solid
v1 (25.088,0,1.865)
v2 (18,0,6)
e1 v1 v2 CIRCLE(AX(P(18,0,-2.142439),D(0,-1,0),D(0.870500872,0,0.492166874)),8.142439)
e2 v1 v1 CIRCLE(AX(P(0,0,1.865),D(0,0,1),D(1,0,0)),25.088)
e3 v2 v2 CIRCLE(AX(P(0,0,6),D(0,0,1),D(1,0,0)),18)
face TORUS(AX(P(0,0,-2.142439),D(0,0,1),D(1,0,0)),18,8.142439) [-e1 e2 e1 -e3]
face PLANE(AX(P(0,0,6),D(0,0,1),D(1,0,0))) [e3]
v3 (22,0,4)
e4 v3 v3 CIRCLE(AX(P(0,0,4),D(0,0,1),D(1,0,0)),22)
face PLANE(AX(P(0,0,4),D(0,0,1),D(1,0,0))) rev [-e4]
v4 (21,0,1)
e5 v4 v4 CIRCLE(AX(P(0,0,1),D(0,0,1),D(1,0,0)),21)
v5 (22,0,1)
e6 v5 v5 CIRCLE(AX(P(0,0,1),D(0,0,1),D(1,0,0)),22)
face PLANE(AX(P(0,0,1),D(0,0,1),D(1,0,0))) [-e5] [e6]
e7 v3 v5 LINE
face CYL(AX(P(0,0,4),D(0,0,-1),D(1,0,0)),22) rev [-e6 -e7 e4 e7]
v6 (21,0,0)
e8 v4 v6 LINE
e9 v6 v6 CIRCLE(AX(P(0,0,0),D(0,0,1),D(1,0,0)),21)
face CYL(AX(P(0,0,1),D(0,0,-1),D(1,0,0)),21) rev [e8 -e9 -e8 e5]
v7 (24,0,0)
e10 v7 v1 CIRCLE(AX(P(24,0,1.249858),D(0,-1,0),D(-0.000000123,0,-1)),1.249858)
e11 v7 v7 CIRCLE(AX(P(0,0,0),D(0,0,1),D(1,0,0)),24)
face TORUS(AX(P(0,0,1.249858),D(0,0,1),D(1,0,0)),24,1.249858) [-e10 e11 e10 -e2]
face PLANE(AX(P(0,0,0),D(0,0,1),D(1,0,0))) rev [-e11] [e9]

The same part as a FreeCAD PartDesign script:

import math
import FreeCAD as App
import Part
import Sketcher
from FreeCAD import Vector
Q = App.Units.Quantity

doc = App.newDocument("Part")
body = doc.addObject("PartDesign::Body", "Body")

# Sketch on XZ plane
sketch1 = doc.addObject("Sketcher::SketchObject", "Sketch")
body.addObject(sketch1)
sketch1.AttachmentSupport = (doc.XZ_Plane, [""])
sketch1.MapMode = "FlatFace"
sketch1.addGeometry([
    Part.LineSegment(Vector(21, 0, 0), Vector(24, 0, 0)),  # 0
    Part.ArcOfCircle(Part.Circle(Vector(24, 1.249858, 0), Vector(0, 0, 1), 1.249858), math.radians(-90.000007), math.radians(29.483313)),  # 1
    Part.ArcOfCircle(Part.Circle(Vector(18, -2.142439, 0), Vector(0, 0, 1), 8.142439), math.radians(29.483104), math.radians(90.000001)),  # 2
    Part.LineSegment(Vector(18, 6, 0), Vector(0, 6, 0)),  # 3
    Part.LineSegment(Vector(0, 6, 0), Vector(0, 4, 0)),  # 4
    Part.LineSegment(Vector(0, 4, 0), Vector(22, 4, 0)),  # 5
    Part.LineSegment(Vector(22, 4, 0), Vector(22, 1, 0)),  # 6
    Part.LineSegment(Vector(22, 1, 0), Vector(21, 1, 0)),  # 7
    Part.LineSegment(Vector(21, 1, 0), Vector(21, 0, 0)),  # 8
], False)
sketch1.addConstraint([
    Sketcher.Constraint("Tangent", 0, 2, 1, 1),
    Sketcher.Constraint("Coincident", 1, 2, 2, 1),
    Sketcher.Constraint("Tangent", 2, 2, 3, 1),
    Sketcher.Constraint("Coincident", 3, 2, 4, 1),
    Sketcher.Constraint("Coincident", 4, 2, 5, 1),
    Sketcher.Constraint("Coincident", 5, 2, 6, 1),
    Sketcher.Constraint("Coincident", 6, 2, 7, 1),
    Sketcher.Constraint("Coincident", 7, 2, 8, 1),
    Sketcher.Constraint("Coincident", 8, 2, 0, 1),
    Sketcher.Constraint("Horizontal", 0),
    Sketcher.Constraint("Horizontal", 3),
    Sketcher.Constraint("Vertical", 4),
    Sketcher.Constraint("Horizontal", 5),
    Sketcher.Constraint("Vertical", 6),
    Sketcher.Constraint("Horizontal", 7),
    Sketcher.Constraint("Vertical", 8),
    Sketcher.Constraint("PointOnObject", 0, 2, -1),
    Sketcher.Constraint("PointOnObject", 3, 2, -2),
    Sketcher.Constraint("Equal", 0, 6),
    Sketcher.Constraint("Equal", 7, 8),
    Sketcher.Constraint("DistanceX", 0, 1, 0, 2, Q("3 mm")),
    Sketcher.Constraint("DistanceX", 3, 2, 3, 1, Q("18 mm")),
    Sketcher.Constraint("DistanceX", 5, 1, 5, 2, Q("22 mm")),
    Sketcher.Constraint("DistanceX", 7, 2, 7, 1, Q("1 mm")),
    Sketcher.Constraint("DistanceY", 4, 2, 4, 1, Q("2 mm")),
    Sketcher.Constraint("Radius", 2, Q("8.142439 mm")),
    Sketcher.Constraint("DistanceX", -1, 1, 1, 2, Q("25.088 mm")),
])
revolution = doc.addObject("PartDesign::Revolution", "Revolution")
body.addObject(revolution)
revolution.Profile = sketch1
revolution.ReferenceAxis = (sketch1, ["V_Axis"])
revolution.Angle = 360

doc.recompute()
